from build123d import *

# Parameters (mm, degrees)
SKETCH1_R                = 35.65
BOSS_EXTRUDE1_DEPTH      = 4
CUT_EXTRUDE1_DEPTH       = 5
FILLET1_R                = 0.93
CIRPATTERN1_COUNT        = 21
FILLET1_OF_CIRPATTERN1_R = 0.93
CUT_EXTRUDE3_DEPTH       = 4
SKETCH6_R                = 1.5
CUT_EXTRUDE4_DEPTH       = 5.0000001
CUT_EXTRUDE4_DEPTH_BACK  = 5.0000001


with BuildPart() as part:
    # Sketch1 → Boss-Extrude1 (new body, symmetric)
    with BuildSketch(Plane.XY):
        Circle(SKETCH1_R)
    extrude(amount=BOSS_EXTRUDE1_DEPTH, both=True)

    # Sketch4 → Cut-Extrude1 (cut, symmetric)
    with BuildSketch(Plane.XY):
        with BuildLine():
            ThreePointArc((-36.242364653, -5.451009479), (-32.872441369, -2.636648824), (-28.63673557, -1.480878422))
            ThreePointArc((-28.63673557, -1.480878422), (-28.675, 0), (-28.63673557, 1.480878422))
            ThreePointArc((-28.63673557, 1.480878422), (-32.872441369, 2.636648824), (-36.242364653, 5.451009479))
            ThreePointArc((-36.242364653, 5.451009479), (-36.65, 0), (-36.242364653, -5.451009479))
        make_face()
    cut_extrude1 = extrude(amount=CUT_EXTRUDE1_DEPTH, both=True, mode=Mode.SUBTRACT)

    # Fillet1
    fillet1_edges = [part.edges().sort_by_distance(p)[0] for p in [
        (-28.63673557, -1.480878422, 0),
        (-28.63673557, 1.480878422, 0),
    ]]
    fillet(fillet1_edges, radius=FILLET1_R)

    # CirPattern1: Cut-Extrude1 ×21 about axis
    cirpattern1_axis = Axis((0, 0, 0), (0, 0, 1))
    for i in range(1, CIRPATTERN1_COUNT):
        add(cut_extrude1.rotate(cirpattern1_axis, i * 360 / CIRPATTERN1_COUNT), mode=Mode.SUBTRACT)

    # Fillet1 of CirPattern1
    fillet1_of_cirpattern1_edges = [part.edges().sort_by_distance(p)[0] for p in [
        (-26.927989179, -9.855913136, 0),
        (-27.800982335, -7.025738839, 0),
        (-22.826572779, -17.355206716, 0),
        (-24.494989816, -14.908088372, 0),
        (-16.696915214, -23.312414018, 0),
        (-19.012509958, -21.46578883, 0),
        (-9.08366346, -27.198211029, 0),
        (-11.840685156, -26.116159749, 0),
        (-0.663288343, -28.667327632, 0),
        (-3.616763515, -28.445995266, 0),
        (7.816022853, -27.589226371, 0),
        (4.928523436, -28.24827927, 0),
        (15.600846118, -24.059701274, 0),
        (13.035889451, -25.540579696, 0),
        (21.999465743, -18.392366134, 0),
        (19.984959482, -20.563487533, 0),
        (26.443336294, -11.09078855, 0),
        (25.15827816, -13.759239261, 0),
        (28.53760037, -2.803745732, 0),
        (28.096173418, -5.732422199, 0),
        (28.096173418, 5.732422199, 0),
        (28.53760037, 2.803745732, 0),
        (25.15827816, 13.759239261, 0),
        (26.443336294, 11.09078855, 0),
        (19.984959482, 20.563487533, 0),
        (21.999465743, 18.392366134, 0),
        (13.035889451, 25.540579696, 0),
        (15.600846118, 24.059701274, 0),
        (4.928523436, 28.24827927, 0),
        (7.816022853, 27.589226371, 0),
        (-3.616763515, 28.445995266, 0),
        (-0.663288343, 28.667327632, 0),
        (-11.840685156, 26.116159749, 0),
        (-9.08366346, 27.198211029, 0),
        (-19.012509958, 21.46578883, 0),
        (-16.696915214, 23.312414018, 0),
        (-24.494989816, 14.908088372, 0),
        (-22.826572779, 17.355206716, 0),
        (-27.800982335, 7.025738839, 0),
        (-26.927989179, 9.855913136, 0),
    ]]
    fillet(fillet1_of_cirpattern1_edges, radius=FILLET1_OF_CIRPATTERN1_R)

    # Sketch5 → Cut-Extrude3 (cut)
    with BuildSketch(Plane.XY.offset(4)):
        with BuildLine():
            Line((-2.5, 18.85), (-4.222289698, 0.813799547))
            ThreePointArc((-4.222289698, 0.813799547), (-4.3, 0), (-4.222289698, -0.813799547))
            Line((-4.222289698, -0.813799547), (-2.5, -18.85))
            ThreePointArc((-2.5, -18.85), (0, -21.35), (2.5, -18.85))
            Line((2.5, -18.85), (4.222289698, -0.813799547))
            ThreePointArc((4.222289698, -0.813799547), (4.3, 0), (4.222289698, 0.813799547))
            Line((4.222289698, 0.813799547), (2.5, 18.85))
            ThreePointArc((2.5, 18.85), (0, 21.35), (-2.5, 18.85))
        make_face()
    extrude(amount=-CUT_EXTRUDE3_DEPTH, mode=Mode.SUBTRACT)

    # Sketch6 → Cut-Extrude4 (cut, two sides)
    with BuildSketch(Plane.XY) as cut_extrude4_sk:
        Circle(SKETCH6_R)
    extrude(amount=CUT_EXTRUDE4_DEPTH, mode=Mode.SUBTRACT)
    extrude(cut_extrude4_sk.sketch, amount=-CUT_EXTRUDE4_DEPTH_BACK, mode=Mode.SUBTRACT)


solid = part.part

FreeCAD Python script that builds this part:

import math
import FreeCAD as App
import Part
import Sketcher


def edges_at(feature, points):
    """Names of the edges that pass closest to the given points."""
    edges = feature.Shape.Edges
    near = lambda p: min(range(len(edges)), key=lambda i: edges[i].distToShape(Part.Vertex(*p))[0])
    return sorted({f"Edge{near(p) + 1}" for p in points})

doc = App.newDocument("Part")
body = doc.addObject("PartDesign::Body", "Body")

# Sketch on XY plane
sketch1 = body.newObject("Sketcher::SketchObject", "Sketch")
sketch1.AttachmentSupport = (doc.getObject("XY_Plane"), [""])
sketch1.MapMode = "FlatFace"
sketch1.addGeometry(Part.Circle(App.Vector(0, 0, 0), App.Vector(0, 0, 1), 35.65), False)
sketch1.addConstraint(Sketcher.Constraint("Coincident", 0, 3, -1, 1))
sketch1.addConstraint(Sketcher.Constraint("Diameter", 0, 71.3))
pad1 = body.newObject("PartDesign::Pad", "Pad")
pad1.Profile = sketch1
pad1.Length = 8
pad1.Midplane = True

# Sketch on XY plane
sketch2 = body.newObject("Sketcher::SketchObject", "Sketch001")
sketch2.AttachmentSupport = (doc.getObject("XY_Plane"), [""])
sketch2.MapMode = "FlatFace"
sketch2.addGeometry(Part.ArcOfCircle(Part.Circle(App.Vector(-28.104639, -11.770387, 0), App.Vector(0, 0, 1), 10.303257), math.radians(92.960274), math.radians(142.168758)), False)
sketch2.addGeometry(Part.ArcOfCircle(Part.Circle(App.Vector(0, 0, 0), App.Vector(0, 0, 1), 28.675), math.radians(177.039726), math.radians(182.960274)), False)
sketch2.addGeometry(Part.ArcOfCircle(Part.Circle(App.Vector(-28.104639, 11.770387, 0), App.Vector(0, 0, 1), 10.303257), math.radians(-142.168758), math.radians(-92.960274)), False)
sketch2.addGeometry(Part.ArcOfCircle(Part.Circle(App.Vector(0, 0, 0), App.Vector(0, 0, 1), 36.65), math.radians(171.446578), math.radians(188.553422)), False)
sketch2.addConstraint(Sketcher.Constraint("Coincident", 0, 1, 1, 2))
sketch2.addConstraint(Sketcher.Constraint("Coincident", 1, 1, 2, 2))
sketch2.addConstraint(Sketcher.Constraint("Coincident", 2, 1, 3, 1))
sketch2.addConstraint(Sketcher.Constraint("Coincident", 3, 2, 0, 2))
sketch2.addConstraint(Sketcher.Constraint("Coincident", 1, 3, -1, 1))
sketch2.addConstraint(Sketcher.Constraint("Coincident", 3, 3, -1, 1))
sketch2.addConstraint(Sketcher.Constraint("Equal", 0, 2))
sketch2.addConstraint(Sketcher.Constraint("Symmetric", 0, 3, 2, 3, -1))
sketch2.addConstraint(Sketcher.Constraint("Radius", 3, 36.65))
sketch2.addConstraint(Sketcher.Constraint("Radius", 1, 28.675))
sketch2.addConstraint(Sketcher.Constraint("Radius", 0, 10.303257))
sketch2.addConstraint(Sketcher.Constraint("DistanceX", 0, 3, -1, 1, 28.104639))
sketch2.addConstraint(Sketcher.Constraint("DistanceY", 0, 1, -1, 1, 1.480878))
pocket1 = body.newObject("PartDesign::Pocket", "Pocket")
pocket1.Profile = sketch2
pocket1.Length = 10
pocket1.Midplane = True
doc.recompute()

fillet = body.newObject("PartDesign::Fillet", "Fillet")
fillet.Base = (pocket1, edges_at(pocket1, [(-28.637, -1.481, 0), (-28.637, 1.481, 0)]))
fillet.Radius = 0.93
doc.recompute()

polarpattern = body.newObject("PartDesign::PolarPattern", "PolarPattern")
polarpattern.Originals = [pocket1]
polarpattern.Axis = (doc.getObject("Z_Axis"), [""])
polarpattern.Angle = 360
polarpattern.Occurrences = 21
body.Tip = polarpattern
doc.recompute()

fillet2 = body.newObject("PartDesign::Fillet", "Fillet001")
fillet2.Base = (polarpattern, edges_at(polarpattern, [
    (-26.928, -9.856, 0),
    (-27.801, -7.026, 0),
    (-22.827, -17.355, 0),
    (-24.495, -14.908, 0),
    (-16.697, -23.312, 0),
    (-19.013, -21.466, 0),
    (-9.084, -27.198, 0),
    (-11.841, -26.116, 0),
    (-0.663, -28.667, 0),
    (-3.617, -28.446, 0),
    (7.816, -27.589, 0),
    (4.929, -28.248, 0),
    (15.601, -24.06, 0),
    (13.036, -25.541, 0),
    (21.999, -18.392, 0),
    (19.985, -20.563, 0),
    (26.443, -11.091, 0),
    (25.158, -13.759, 0),
    (28.538, -2.804, 0),
    (28.096, -5.732, 0),
    (28.096, 5.732, 0),
    (28.538, 2.804, 0),
    (25.158, 13.759, 0),
    (26.443, 11.091, 0),
    (19.985, 20.563, 0),
    (21.999, 18.392, 0),
    (13.036, 25.541, 0),
    (15.601, 24.06, 0),
    (4.929, 28.248, 0),
    (7.816, 27.589, 0),
    (-3.617, 28.446, 0),
    (-0.663, 28.667, 0),
    (-11.841, 26.116, 0),
    (-9.084, 27.198, 0),
    (-19.013, 21.466, 0),
    (-16.697, 23.312, 0),
    (-24.495, 14.908, 0),
    (-22.827, 17.355, 0),
    (-27.801, 7.026, 0),
    (-26.928, 9.856, 0),
]))
fillet2.Radius = 0.93

# Sketch on XY plane
sketch3 = body.newObject("Sketcher::SketchObject", "Sketch002")
sketch3.AttachmentSupport = (doc.getObject("XY_Plane"), [""])
sketch3.MapMode = "FlatFace"
sketch3.AttachmentOffset = App.Placement(App.Vector(0, 0, 4), App.Rotation())
sketch3.addGeometry(Part.LineSegment(App.Vector(-2.5, 18.85, 0), App.Vector(-4.22229, 0.8138, 0)), False)
sketch3.addGeometry(Part.ArcOfCircle(Part.Circle(App.Vector(0, 0, 0), App.Vector(0, 0, 1), 4.3), math.radians(169.090649), math.radians(190.909351)), False)
sketch3.addGeometry(Part.LineSegment(App.Vector(-4.22229, -0.8138, 0), App.Vector(-2.5, -18.85, 0)), False)
sketch3.addGeometry(Part.ArcOfCircle(Part.Circle(App.Vector(0, -18.85, 0), App.Vector(0, 0, 1), 2.5), math.radians(180), math.radians(360)), False)
sketch3.addGeometry(Part.LineSegment(App.Vector(2.5, -18.85, 0), App.Vector(4.22229, -0.8138, 0)), False)
sketch3.addGeometry(Part.ArcOfCircle(Part.Circle(App.Vector(0, 0, 0), App.Vector(0, 0, 1), 4.3), math.radians(-10.909351), math.radians(10.909351)), False)
sketch3.addGeometry(Part.LineSegment(App.Vector(4.22229, 0.8138, 0), App.Vector(2.5, 18.85, 0)), False)
sketch3.addGeometry(Part.ArcOfCircle(Part.Circle(App.Vector(0, 18.85, 0), App.Vector(0, 0, 1), 2.5), math.radians(0), math.radians(180)), False)
sketch3.addConstraint(Sketcher.Constraint("Coincident", 0, 2, 1, 1))
sketch3.addConstraint(Sketcher.Constraint("Coincident", 1, 2, 2, 1))
sketch3.addConstraint(Sketcher.Constraint("Coincident", 2, 2, 3, 1))
sketch3.addConstraint(Sketcher.Constraint("Coincident", 3, 2, 4, 1))
sketch3.addConstraint(Sketcher.Constraint("Coincident", 4, 2, 5, 1))
sketch3.addConstraint(Sketcher.Constraint("Coincident", 5, 2, 6, 1))
sketch3.addConstraint(Sketcher.Constraint("Coincident", 6, 2, 7, 1))
sketch3.addConstraint(Sketcher.Constraint("Coincident", 7, 2, 0, 1))
sketch3.addConstraint(Sketcher.Constraint("Coincident", 1, 3, -1, 1))
sketch3.addConstraint(Sketcher.Constraint("Coincident", 5, 3, -1, 1))
sketch3.addConstraint(Sketcher.Constraint("Equal", 1, 5))
sketch3.addConstraint(Sketcher.Constraint("Equal", 3, 7))
sketch3.addConstraint(Sketcher.Constraint("Symmetric", 3, 3, 7, 3, -1, 1))
sketch3.addConstraint(Sketcher.Constraint("Symmetric", 2, 2, 3, 2, -2))
sketch3.addConstraint(Sketcher.Constraint("Parallel", 0, 4))
sketch3.addConstraint(Sketcher.Constraint("Parallel", 2, 6))
sketch3.addConstraint(Sketcher.Constraint("Horizontal", 3, 3, 2, 2))
sketch3.addConstraint(Sketcher.Constraint("Horizontal", 1, 2, 4, 2))
sketch3.addConstraint(Sketcher.Constraint("Horizontal", 0, 2, 5, 2))
sketch3.addConstraint(Sketcher.Constraint("Horizontal", 7, 3, 6, 2))
sketch3.addConstraint(Sketcher.Constraint("Radius", 1, 4.3))
sketch3.addConstraint(Sketcher.Constraint("Radius", 3, 2.5))
sketch3.addConstraint(Sketcher.Constraint("DistanceY", 3, 3, 7, 3, 37.7))
sketch3.addConstraint(Sketcher.Constraint("DistanceY", -1, 1, 0, 2, 0.8138))
pocket2 = body.newObject("PartDesign::Pocket", "Pocket001")
pocket2.Profile = sketch3
pocket2.Length = 4

# Sketch on XY plane
sketch4 = body.newObject("Sketcher::SketchObject", "Sketch003")
sketch4.AttachmentSupport = (doc.getObject("XY_Plane"), [""])
sketch4.MapMode = "FlatFace"
sketch4.addGeometry(Part.Circle(App.Vector(0, 0, 0), App.Vector(0, 0, 1), 1.5), False)
sketch4.addConstraint(Sketcher.Constraint("Coincident", 0, 3, -1, 1))
sketch4.addConstraint(Sketcher.Constraint("Diameter", 0, 3.0))
pocket3 = body.newObject("PartDesign::Pocket", "Pocket002")
pocket3.Profile = sketch4
pocket3.Type = "ThroughAll"
pocket3.Midplane = True

doc.recompute()
